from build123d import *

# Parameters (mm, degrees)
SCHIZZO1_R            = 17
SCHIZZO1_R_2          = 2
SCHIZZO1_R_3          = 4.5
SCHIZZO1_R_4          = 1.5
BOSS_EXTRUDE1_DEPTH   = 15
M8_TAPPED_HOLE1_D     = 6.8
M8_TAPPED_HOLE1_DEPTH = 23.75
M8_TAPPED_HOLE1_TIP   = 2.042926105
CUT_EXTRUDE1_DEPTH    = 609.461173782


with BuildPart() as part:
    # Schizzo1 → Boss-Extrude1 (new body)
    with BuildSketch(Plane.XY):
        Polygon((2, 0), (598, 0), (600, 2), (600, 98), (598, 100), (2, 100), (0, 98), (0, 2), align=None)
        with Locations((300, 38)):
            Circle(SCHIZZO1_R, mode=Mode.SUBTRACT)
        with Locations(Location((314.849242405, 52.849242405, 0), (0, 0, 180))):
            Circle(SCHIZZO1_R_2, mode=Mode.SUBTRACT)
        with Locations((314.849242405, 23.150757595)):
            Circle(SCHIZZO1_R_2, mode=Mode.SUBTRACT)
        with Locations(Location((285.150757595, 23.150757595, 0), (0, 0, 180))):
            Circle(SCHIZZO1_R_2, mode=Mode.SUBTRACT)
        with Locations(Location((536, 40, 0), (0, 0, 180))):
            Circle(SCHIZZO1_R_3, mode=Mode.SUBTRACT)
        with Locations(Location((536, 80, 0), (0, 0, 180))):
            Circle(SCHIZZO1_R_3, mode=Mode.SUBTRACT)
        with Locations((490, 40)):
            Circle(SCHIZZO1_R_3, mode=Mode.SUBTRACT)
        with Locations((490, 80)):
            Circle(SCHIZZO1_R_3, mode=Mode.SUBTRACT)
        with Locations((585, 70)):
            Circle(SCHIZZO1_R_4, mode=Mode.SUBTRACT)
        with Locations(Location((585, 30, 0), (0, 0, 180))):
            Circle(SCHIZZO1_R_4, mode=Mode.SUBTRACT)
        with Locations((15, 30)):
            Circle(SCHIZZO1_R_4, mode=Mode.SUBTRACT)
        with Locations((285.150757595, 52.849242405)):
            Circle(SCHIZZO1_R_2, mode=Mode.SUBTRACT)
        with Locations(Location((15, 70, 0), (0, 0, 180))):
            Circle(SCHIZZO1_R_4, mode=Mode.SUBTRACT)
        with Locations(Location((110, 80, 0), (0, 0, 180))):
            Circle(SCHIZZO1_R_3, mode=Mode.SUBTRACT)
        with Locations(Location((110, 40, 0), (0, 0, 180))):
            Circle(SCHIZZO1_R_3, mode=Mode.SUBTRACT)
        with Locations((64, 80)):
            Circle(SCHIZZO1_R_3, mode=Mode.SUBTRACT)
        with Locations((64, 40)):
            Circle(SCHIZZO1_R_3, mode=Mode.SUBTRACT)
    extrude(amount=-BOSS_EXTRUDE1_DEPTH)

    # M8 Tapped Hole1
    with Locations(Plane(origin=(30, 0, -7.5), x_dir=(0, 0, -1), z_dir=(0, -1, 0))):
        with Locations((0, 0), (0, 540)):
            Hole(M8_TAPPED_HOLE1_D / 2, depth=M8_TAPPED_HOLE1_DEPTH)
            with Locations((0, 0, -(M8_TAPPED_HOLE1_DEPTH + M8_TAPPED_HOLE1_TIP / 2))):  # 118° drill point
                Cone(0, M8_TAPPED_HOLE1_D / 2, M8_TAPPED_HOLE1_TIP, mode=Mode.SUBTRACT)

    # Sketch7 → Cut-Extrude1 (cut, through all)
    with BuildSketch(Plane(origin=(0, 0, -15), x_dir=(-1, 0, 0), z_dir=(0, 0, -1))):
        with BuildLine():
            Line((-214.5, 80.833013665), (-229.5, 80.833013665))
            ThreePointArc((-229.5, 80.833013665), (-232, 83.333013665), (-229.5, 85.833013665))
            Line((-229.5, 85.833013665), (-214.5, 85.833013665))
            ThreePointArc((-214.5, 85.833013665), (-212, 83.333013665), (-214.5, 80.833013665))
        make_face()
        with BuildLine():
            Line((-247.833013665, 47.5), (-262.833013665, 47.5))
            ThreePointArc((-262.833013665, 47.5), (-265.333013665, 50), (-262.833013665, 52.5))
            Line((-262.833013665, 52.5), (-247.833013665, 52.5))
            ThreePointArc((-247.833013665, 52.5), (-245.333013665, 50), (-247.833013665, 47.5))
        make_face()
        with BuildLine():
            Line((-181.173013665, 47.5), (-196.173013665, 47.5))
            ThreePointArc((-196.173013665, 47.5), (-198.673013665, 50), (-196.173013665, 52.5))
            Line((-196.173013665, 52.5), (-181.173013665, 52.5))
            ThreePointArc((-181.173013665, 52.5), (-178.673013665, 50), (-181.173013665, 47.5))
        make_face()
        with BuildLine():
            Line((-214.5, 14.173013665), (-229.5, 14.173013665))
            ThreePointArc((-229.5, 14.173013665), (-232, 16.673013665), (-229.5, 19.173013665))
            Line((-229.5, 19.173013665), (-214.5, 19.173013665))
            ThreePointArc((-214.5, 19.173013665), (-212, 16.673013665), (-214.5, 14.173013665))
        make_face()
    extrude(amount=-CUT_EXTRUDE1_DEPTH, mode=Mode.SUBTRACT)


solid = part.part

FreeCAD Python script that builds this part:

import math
import FreeCAD as App
import Part
import Sketcher
Q = App.Units.Quantity

doc = App.newDocument("Part")
body = doc.addObject("PartDesign::Body", "Body")

# Sketch on XY plane
sketch1 = doc.addObject("Sketcher::SketchObject", "Sketch")
body.addObject(sketch1)
sketch1.AttachmentSupport = (doc.XY_Plane, [""])
sketch1.MapMode = "FlatFace"
sketch1.addGeometry(Part.LineSegment(App.Vector(2, 0, 0), App.Vector(598, 0, 0)), False)
sketch1.addGeometry(Part.LineSegment(App.Vector(598, 0, 0), App.Vector(600, 2, 0)), False)
sketch1.addGeometry(Part.LineSegment(App.Vector(600, 2, 0), App.Vector(600, 98, 0)), False)
sketch1.addGeometry(Part.LineSegment(App.Vector(600, 98, 0), App.Vector(598, 100, 0)), False)
sketch1.addGeometry(Part.LineSegment(App.Vector(598, 100, 0), App.Vector(2, 100, 0)), False)
sketch1.addGeometry(Part.LineSegment(App.Vector(2, 100, 0), App.Vector(0, 98, 0)), False)
sketch1.addGeometry(Part.LineSegment(App.Vector(0, 98, 0), App.Vector(0, 2, 0)), False)
sketch1.addGeometry(Part.LineSegment(App.Vector(0, 2, 0), App.Vector(2, 0, 0)), False)
sketch1.addGeometry(Part.Circle(App.Vector(15, 30, 0), App.Vector(0, 0, 1), 1.5), False)
sketch1.addGeometry(Part.Circle(App.Vector(285.2, 23.2, 0), App.Vector(0, 0, 1), 2), False)
sketch1.addGeometry(Part.Circle(App.Vector(64, 40, 0), App.Vector(0, 0, 1), 4.5), False)
sketch1.addGeometry(Part.Circle(App.Vector(110, 40, 0), App.Vector(0, 0, 1), 4.5), False)
sketch1.addGeometry(Part.Circle(App.Vector(314.8, 23.2, 0), App.Vector(0, 0, 1), 2), False)
sketch1.addGeometry(Part.Circle(App.Vector(585, 30, 0), App.Vector(0, 0, 1), 1.5), False)
sketch1.addGeometry(Part.Circle(App.Vector(300, 38, 0), App.Vector(0, 0, 1), 17), False)
sketch1.addGeometry(Part.Circle(App.Vector(490, 40, 0), App.Vector(0, 0, 1), 4.5), False)
sketch1.addGeometry(Part.Circle(App.Vector(536, 40, 0), App.Vector(0, 0, 1), 4.5), False)
sketch1.addGeometry(Part.Circle(App.Vector(285.2, 52.8, 0), App.Vector(0, 0, 1), 2), False)
sketch1.addGeometry(Part.Circle(App.Vector(15, 70, 0), App.Vector(0, 0, 1), 1.5), False)
sketch1.addGeometry(Part.Circle(App.Vector(64, 80, 0), App.Vector(0, 0, 1), 4.5), False)
sketch1.addGeometry(Part.Circle(App.Vector(110, 80, 0), App.Vector(0, 0, 1), 4.5), False)
sketch1.addGeometry(Part.Circle(App.Vector(314.8, 52.8, 0), App.Vector(0, 0, 1), 2), False)
sketch1.addGeometry(Part.Circle(App.Vector(585, 70, 0), App.Vector(0, 0, 1), 1.5), False)
sketch1.addGeometry(Part.Circle(App.Vector(490, 80, 0), App.Vector(0, 0, 1), 4.5), False)
sketch1.addGeometry(Part.Circle(App.Vector(536, 80, 0), App.Vector(0, 0, 1), 4.5), False)
sketch1.addConstraint(Sketcher.Constraint("Coincident", 0, 2, 1, 1))
sketch1.addConstraint(Sketcher.Constraint("Coincident", 1, 2, 2, 1))
sketch1.addConstraint(Sketcher.Constraint("Coincident", 2, 2, 3, 1))
sketch1.addConstraint(Sketcher.Constraint("Coincident", 3, 2, 4, 1))
sketch1.addConstraint(Sketcher.Constraint("Coincident", 4, 2, 5, 1))
sketch1.addConstraint(Sketcher.Constraint("Coincident", 5, 2, 6, 1))
sketch1.addConstraint(Sketcher.Constraint("Coincident", 6, 2, 7, 1))
sketch1.addConstraint(Sketcher.Constraint("Coincident", 7, 2, 0, 1))
sketch1.addConstraint(Sketcher.Constraint("Horizontal", 0))
sketch1.addConstraint(Sketcher.Constraint("Vertical", 2))
sketch1.addConstraint(Sketcher.Constraint("Horizontal", 4))
sketch1.addConstraint(Sketcher.Constraint("Vertical", 6))
sketch1.addConstraint(Sketcher.Constraint("Equal", 10, 11))
sketch1.addConstraint(Sketcher.Constraint("Equal", 9, 12))
sketch1.addConstraint(Sketcher.Constraint("Equal", 8, 13))
sketch1.addConstraint(Sketcher.Constraint("Equal", 11, 15))
sketch1.addConstraint(Sketcher.Constraint("Equal", 15, 16))
sketch1.addConstraint(Sketcher.Constraint("Equal", 12, 17))
sketch1.addConstraint(Sketcher.Constraint("Equal", 13, 18))
sketch1.addConstraint(Sketcher.Constraint("Equal", 16, 19))
sketch1.addConstraint(Sketcher.Constraint("Equal", 19, 20))
sketch1.addConstraint(Sketcher.Constraint("Equal", 17, 21))
sketch1.addConstraint(Sketcher.Constraint("Equal", 18, 22))
sketch1.addConstraint(Sketcher.Constraint("Equal", 20, 23))
sketch1.addConstraint(Sketcher.Constraint("Equal", 23, 24))
sketch1.addConstraint(Sketcher.Constraint("PointOnObject", 0, 2, -1))
sketch1.addConstraint(Sketcher.Constraint("PointOnObject", 5, 2, -2))
sketch1.addConstraint(Sketcher.Constraint("Perpendicular", 1, 3))
sketch1.addConstraint(Sketcher.Constraint("Perpendicular", 3, 5))
sketch1.addConstraint(Sketcher.Constraint("Perpendicular", 5, 7))
sketch1.addConstraint(Sketcher.Constraint("Horizontal", 10, 3, 11, 3))
sketch1.addConstraint(Sketcher.Constraint("Horizontal", 9, 3, 12, 3))
sketch1.addConstraint(Sketcher.Constraint("Horizontal", 8, 3, 13, 3))
sketch1.addConstraint(Sketcher.Constraint("Horizontal", 11, 3, 15, 3))
sketch1.addConstraint(Sketcher.Constraint("Horizontal", 15, 3, 16, 3))
sketch1.addConstraint(Sketcher.Constraint("Horizontal", 19, 3, 20, 3))
sketch1.addConstraint(Sketcher.Constraint("Horizontal", 17, 3, 21, 3))
sketch1.addConstraint(Sketcher.Constraint("Horizontal", 18, 3, 22, 3))
sketch1.addConstraint(Sketcher.Constraint("Horizontal", 20, 3, 23, 3))
sketch1.addConstraint(Sketcher.Constraint("Horizontal", 23, 3, 24, 3))
sketch1.addConstraint(Sketcher.Constraint("Horizontal", 2, 2, 5, 2))
sketch1.addConstraint(Sketcher.Constraint("Horizontal", 1, 2, 6, 2))
sketch1.addConstraint(Sketcher.Constraint("Vertical", 9, 3, 17, 3))
sketch1.addConstraint(Sketcher.Constraint("Vertical", 8, 3, 18, 3))
sketch1.addConstraint(Sketcher.Constraint("Vertical", 10, 3, 19, 3))
sketch1.addConstraint(Sketcher.Constraint("Vertical", 11, 3, 20, 3))
sketch1.addConstraint(Sketcher.Constraint("Vertical", 12, 3, 21, 3))
sketch1.addConstraint(Sketcher.Constraint("Vertical", 13, 3, 22, 3))
sketch1.addConstraint(Sketcher.Constraint("Vertical", 15, 3, 23, 3))
sketch1.addConstraint(Sketcher.Constraint("Vertical", 16, 3, 24, 3))
sketch1.addConstraint(Sketcher.Constraint("Vertical", 0, 2, 3, 2))
sketch1.addConstraint(Sketcher.Constraint("Vertical", 4, 2, 7, 2))
sketch1.addConstraint(Sketcher.Constraint("Diameter", 8, Q("3 mm")))
sketch1.addConstraint(Sketcher.Constraint("Diameter", 9, Q("4 mm")))
sketch1.addConstraint(Sketcher.Constraint("Diameter", 10, Q("9 mm")))
sketch1.addConstraint(Sketcher.Constraint("Diameter", 14, Q("34 mm")))
sketch1.addConstraint(Sketcher.Constraint("DistanceX", 0, 1, 0, 2, Q("596 mm")))
sketch1.addConstraint(Sketcher.Constraint("DistanceY", 2, 1, 2, 2, Q("96 mm")))
sketch1.addConstraint(Sketcher.Constraint("DistanceX", -1, 1, 8, 3, Q("15 mm")))
sketch1.addConstraint(Sketcher.Constraint("DistanceY", -1, 1, 8, 3, Q("30 mm")))
sketch1.addConstraint(Sketcher.Constraint("DistanceX", -1, 1, 10, 3, Q("64 mm")))
sketch1.addConstraint(Sketcher.Constraint("DistanceY", -1, 1, 10, 3, Q("40 mm")))
sketch1.addConstraint(Sketcher.Constraint("DistanceX", -1, 1, 11, 3, Q("110 mm")))
sketch1.addConstraint(Sketcher.Constraint("DistanceX", -1, 1, 13, 3, Q("585 mm")))
sketch1.addConstraint(Sketcher.Constraint("DistanceX", -1, 1, 14, 3, Q("300 mm")))
sketch1.addConstraint(Sketcher.Constraint("DistanceY", -1, 1, 14, 3, Q("38 mm")))
sketch1.addConstraint(Sketcher.Constraint("DistanceX", -1, 1, 15, 3, Q("490 mm")))
sketch1.addConstraint(Sketcher.Constraint("DistanceX", -1, 1, 16, 3, Q("536 mm")))
sketch1.addConstraint(Sketcher.Constraint("DistanceY", -1, 1, 18, 3, Q("70 mm")))
sketch1.addConstraint(Sketcher.Constraint("DistanceY", -1, 1, 19, 3, Q("80 mm")))
sketch1.addConstraint(Sketcher.Constraint("DistanceX", -1, 1, 0, 2, Q("598 mm")))
sketch1.addConstraint(Sketcher.Constraint("DistanceX", -1, 1, 9, 3, Q("285.150758 mm")))
sketch1.addConstraint(Sketcher.Constraint("DistanceY", -1, 1, 9, 3, Q("23.150758 mm")))
sketch1.addConstraint(Sketcher.Constraint("DistanceX", -1, 1, 12, 3, Q("314.849242 mm")))
sketch1.addConstraint(Sketcher.Constraint("DistanceY", -1, 1, 17, 3, Q("52.849242 mm")))
pad1 = doc.addObject("PartDesign::Pad", "Pad")
body.addObject(pad1)
pad1.Profile = sketch1
pad1.Length = 15
pad1.Reversed = True

# Sketch on XZ plane
sketch2 = doc.addObject("Sketcher::SketchObject", "Sketch001")
body.addObject(sketch2)
sketch2.AttachmentSupport = (doc.XZ_Plane, [""])
sketch2.MapMode = "FlatFace"
sketch2.addGeometry(Part.Circle(App.Vector(30, -7.5, 0), App.Vector(0, 0, 1), 3.4), False)
sketch2.addGeometry(Part.Circle(App.Vector(570, -7.5, 0), App.Vector(0, 0, 1), 3.4), False)
sketch2.addConstraint(Sketcher.Constraint("Equal", 0, 1))
sketch2.addConstraint(Sketcher.Constraint("Horizontal", 0, 3, 1, 3))
sketch2.addConstraint(Sketcher.Constraint("Diameter", 0, Q("6.8 mm")))
sketch2.addConstraint(Sketcher.Constraint("DistanceX", -1, 1, 0, 3, Q("30 mm")))
sketch2.addConstraint(Sketcher.Constraint("DistanceX", -1, 1, 1, 3, Q("570 mm")))
sketch2.addConstraint(Sketcher.Constraint("DistanceY", 0, 3, -1, 1, Q("7.5 mm")))
doc.recompute()
hole = doc.addObject("PartDesign::Hole", "Hole")
body.addObject(hole)
hole.Profile = sketch2
hole.ThreadType = "None"
hole.Diameter = 6.8
hole.DepthType = "Dimension"
hole.Depth = 23.75
hole.DrillPoint = "Angled"
hole.DrillPointAngle = 118

# Sketch on XY plane
sketch3 = doc.addObject("Sketcher::SketchObject", "Sketch002")
body.addObject(sketch3)
sketch3.AttachmentSupport = (doc.XY_Plane, [""])
sketch3.MapMode = "FlatFace"
sketch3.AttachmentOffset = App.Placement(App.Vector(0, 0, -15), App.Rotation())
sketch3.addGeometry(Part.LineSegment(App.Vector(229.5, 80.8, 0), App.Vector(214.5, 80.8, 0)), False)
sketch3.addGeometry(Part.ArcOfCircle(Part.Circle(App.Vector(214.5, 83.3, 0), App.Vector(0, 0, 1), 2.5), math.radians(90), math.radians(270)), False)
sketch3.addGeometry(Part.LineSegment(App.Vector(214.5, 85.8, 0), App.Vector(229.5, 85.8, 0)), False)
sketch3.addGeometry(Part.ArcOfCircle(Part.Circle(App.Vector(229.5, 83.3, 0), App.Vector(0, 0, 1), 2.5), math.radians(-90), math.radians(90)), False)
sketch3.addGeometry(Part.LineSegment(App.Vector(262.8, 47.5, 0), App.Vector(247.8, 47.5, 0)), False)
sketch3.addGeometry(Part.ArcOfCircle(Part.Circle(App.Vector(247.8, 50, 0), App.Vector(0, 0, 1), 2.5), math.radians(90), math.radians(270)), False)
sketch3.addGeometry(Part.LineSegment(App.Vector(247.8, 52.5, 0), App.Vector(262.8, 52.5, 0)), False)
sketch3.addGeometry(Part.ArcOfCircle(Part.Circle(App.Vector(262.8, 50, 0), App.Vector(0, 0, 1), 2.5), math.radians(-90), math.radians(90)), False)
sketch3.addGeometry(Part.LineSegment(App.Vector(196.2, 47.5, 0), App.Vector(181.2, 47.5, 0)), False)
sketch3.addGeometry(Part.ArcOfCircle(Part.Circle(App.Vector(181.2, 50, 0), App.Vector(0, 0, 1), 2.5), math.radians(90), math.radians(270)), False)
sketch3.addGeometry(Part.LineSegment(App.Vector(181.2, 52.5, 0), App.Vector(196.2, 52.5, 0)), False)
sketch3.addGeometry(Part.ArcOfCircle(Part.Circle(App.Vector(196.2, 50, 0), App.Vector(0, 0, 1), 2.5), math.radians(-90), math.radians(90)), False)
sketch3.addGeometry(Part.LineSegment(App.Vector(229.5, 14.2, 0), App.Vector(214.5, 14.2, 0)), False)
sketch3.addGeometry(Part.ArcOfCircle(Part.Circle(App.Vector(214.5, 16.7, 0), App.Vector(0, 0, 1), 2.5), math.radians(90), math.radians(270)), False)
sketch3.addGeometry(Part.LineSegment(App.Vector(214.5, 19.2, 0), App.Vector(229.5, 19.2, 0)), False)
sketch3.addGeometry(Part.ArcOfCircle(Part.Circle(App.Vector(229.5, 16.7, 0), App.Vector(0, 0, 1), 2.5), math.radians(-90), math.radians(90)), False)
sketch3.addConstraint(Sketcher.Constraint("Tangent", 0, 2, 1, 2))
sketch3.addConstraint(Sketcher.Constraint("Tangent", 1, 1, 2, 1))
sketch3.addConstraint(Sketcher.Constraint("Tangent", 2, 2, 3, 2))
sketch3.addConstraint(Sketcher.Constraint("Tangent", 3, 1, 0, 1))
sketch3.addConstraint(Sketcher.Constraint("Tangent", 4, 2, 5, 2))
sketch3.addConstraint(Sketcher.Constraint("Tangent", 5, 1, 6, 1))
sketch3.addConstraint(Sketcher.Constraint("Tangent", 6, 2, 7, 2))
sketch3.addConstraint(Sketcher.Constraint("Tangent", 7, 1, 4, 1))
sketch3.addConstraint(Sketcher.Constraint("Tangent", 8, 2, 9, 2))
sketch3.addConstraint(Sketcher.Constraint("Tangent", 9, 1, 10, 1))
sketch3.addConstraint(Sketcher.Constraint("Tangent", 10, 2, 11, 2))
sketch3.addConstraint(Sketcher.Constraint("Tangent", 11, 1, 8, 1))
sketch3.addConstraint(Sketcher.Constraint("Tangent", 12, 2, 13, 2))
sketch3.addConstraint(Sketcher.Constraint("Tangent", 13, 1, 14, 1))
sketch3.addConstraint(Sketcher.Constraint("Tangent", 14, 2, 15, 2))
sketch3.addConstraint(Sketcher.Constraint("Tangent", 15, 1, 12, 1))
sketch3.addConstraint(Sketcher.Constraint("Horizontal", 0))
sketch3.addConstraint(Sketcher.Constraint("Horizontal", 2))
sketch3.addConstraint(Sketcher.Constraint("Horizontal", 4))
sketch3.addConstraint(Sketcher.Constraint("Horizontal", 6))
sketch3.addConstraint(Sketcher.Constraint("Horizontal", 8))
sketch3.addConstraint(Sketcher.Constraint("Horizontal", 10))
sketch3.addConstraint(Sketcher.Constraint("Horizontal", 12))
sketch3.addConstraint(Sketcher.Constraint("Horizontal", 14))
sketch3.addConstraint(Sketcher.Constraint("Equal", 3, 5))
sketch3.addConstraint(Sketcher.Constraint("Equal", 7, 9))
sketch3.addConstraint(Sketcher.Constraint("Equal", 11, 13))
sketch3.addConstraint(Sketcher.Constraint("Horizontal", 7, 3, 9, 3))
sketch3.addConstraint(Sketcher.Constraint("Vertical", 1, 3, 13, 3))
sketch3.addConstraint(Sketcher.Constraint("Vertical", 3, 3, 15, 3))
sketch3.addConstraint(Sketcher.Constraint("Equal", 2, 4))
sketch3.addConstraint(Sketcher.Constraint("Equal", 6, 8))
sketch3.addConstraint(Sketcher.Constraint("Radius", 1, Q("2.5 mm")))
sketch3.addConstraint(Sketcher.Constraint("DistanceX", 0, 2, 0, 1, Q("15 mm")))
sketch3.addConstraint(Sketcher.Constraint("DistanceY", -1, 1, 5, 3, Q("50 mm")))
sketch3.addConstraint(Sketcher.Constraint("DistanceX", -1, 1, 1, 3, Q("214.5 mm")))
sketch3.addConstraint(Sketcher.Constraint("DistanceX", 9, 3, 5, 3, Q("66.66 mm")))
sketch3.addConstraint(Sketcher.Constraint("DistanceY", 13, 3, 1, 3, Q("66.66 mm")))
sketch3.addConstraint(Sketcher.Constraint("DistanceY", -1, 1, 1, 3, Q("83.333014 mm")))
sketch3.addConstraint(Sketcher.Constraint("DistanceX", -1, 1, 5, 3, Q("247.833014 mm")))
pocket1 = doc.addObject("PartDesign::Pocket", "Pocket")
body.addObject(pocket1)
pocket1.Profile = sketch3
pocket1.Type = "ThroughAll"
pocket1.Reversed = True

doc.recompute()
